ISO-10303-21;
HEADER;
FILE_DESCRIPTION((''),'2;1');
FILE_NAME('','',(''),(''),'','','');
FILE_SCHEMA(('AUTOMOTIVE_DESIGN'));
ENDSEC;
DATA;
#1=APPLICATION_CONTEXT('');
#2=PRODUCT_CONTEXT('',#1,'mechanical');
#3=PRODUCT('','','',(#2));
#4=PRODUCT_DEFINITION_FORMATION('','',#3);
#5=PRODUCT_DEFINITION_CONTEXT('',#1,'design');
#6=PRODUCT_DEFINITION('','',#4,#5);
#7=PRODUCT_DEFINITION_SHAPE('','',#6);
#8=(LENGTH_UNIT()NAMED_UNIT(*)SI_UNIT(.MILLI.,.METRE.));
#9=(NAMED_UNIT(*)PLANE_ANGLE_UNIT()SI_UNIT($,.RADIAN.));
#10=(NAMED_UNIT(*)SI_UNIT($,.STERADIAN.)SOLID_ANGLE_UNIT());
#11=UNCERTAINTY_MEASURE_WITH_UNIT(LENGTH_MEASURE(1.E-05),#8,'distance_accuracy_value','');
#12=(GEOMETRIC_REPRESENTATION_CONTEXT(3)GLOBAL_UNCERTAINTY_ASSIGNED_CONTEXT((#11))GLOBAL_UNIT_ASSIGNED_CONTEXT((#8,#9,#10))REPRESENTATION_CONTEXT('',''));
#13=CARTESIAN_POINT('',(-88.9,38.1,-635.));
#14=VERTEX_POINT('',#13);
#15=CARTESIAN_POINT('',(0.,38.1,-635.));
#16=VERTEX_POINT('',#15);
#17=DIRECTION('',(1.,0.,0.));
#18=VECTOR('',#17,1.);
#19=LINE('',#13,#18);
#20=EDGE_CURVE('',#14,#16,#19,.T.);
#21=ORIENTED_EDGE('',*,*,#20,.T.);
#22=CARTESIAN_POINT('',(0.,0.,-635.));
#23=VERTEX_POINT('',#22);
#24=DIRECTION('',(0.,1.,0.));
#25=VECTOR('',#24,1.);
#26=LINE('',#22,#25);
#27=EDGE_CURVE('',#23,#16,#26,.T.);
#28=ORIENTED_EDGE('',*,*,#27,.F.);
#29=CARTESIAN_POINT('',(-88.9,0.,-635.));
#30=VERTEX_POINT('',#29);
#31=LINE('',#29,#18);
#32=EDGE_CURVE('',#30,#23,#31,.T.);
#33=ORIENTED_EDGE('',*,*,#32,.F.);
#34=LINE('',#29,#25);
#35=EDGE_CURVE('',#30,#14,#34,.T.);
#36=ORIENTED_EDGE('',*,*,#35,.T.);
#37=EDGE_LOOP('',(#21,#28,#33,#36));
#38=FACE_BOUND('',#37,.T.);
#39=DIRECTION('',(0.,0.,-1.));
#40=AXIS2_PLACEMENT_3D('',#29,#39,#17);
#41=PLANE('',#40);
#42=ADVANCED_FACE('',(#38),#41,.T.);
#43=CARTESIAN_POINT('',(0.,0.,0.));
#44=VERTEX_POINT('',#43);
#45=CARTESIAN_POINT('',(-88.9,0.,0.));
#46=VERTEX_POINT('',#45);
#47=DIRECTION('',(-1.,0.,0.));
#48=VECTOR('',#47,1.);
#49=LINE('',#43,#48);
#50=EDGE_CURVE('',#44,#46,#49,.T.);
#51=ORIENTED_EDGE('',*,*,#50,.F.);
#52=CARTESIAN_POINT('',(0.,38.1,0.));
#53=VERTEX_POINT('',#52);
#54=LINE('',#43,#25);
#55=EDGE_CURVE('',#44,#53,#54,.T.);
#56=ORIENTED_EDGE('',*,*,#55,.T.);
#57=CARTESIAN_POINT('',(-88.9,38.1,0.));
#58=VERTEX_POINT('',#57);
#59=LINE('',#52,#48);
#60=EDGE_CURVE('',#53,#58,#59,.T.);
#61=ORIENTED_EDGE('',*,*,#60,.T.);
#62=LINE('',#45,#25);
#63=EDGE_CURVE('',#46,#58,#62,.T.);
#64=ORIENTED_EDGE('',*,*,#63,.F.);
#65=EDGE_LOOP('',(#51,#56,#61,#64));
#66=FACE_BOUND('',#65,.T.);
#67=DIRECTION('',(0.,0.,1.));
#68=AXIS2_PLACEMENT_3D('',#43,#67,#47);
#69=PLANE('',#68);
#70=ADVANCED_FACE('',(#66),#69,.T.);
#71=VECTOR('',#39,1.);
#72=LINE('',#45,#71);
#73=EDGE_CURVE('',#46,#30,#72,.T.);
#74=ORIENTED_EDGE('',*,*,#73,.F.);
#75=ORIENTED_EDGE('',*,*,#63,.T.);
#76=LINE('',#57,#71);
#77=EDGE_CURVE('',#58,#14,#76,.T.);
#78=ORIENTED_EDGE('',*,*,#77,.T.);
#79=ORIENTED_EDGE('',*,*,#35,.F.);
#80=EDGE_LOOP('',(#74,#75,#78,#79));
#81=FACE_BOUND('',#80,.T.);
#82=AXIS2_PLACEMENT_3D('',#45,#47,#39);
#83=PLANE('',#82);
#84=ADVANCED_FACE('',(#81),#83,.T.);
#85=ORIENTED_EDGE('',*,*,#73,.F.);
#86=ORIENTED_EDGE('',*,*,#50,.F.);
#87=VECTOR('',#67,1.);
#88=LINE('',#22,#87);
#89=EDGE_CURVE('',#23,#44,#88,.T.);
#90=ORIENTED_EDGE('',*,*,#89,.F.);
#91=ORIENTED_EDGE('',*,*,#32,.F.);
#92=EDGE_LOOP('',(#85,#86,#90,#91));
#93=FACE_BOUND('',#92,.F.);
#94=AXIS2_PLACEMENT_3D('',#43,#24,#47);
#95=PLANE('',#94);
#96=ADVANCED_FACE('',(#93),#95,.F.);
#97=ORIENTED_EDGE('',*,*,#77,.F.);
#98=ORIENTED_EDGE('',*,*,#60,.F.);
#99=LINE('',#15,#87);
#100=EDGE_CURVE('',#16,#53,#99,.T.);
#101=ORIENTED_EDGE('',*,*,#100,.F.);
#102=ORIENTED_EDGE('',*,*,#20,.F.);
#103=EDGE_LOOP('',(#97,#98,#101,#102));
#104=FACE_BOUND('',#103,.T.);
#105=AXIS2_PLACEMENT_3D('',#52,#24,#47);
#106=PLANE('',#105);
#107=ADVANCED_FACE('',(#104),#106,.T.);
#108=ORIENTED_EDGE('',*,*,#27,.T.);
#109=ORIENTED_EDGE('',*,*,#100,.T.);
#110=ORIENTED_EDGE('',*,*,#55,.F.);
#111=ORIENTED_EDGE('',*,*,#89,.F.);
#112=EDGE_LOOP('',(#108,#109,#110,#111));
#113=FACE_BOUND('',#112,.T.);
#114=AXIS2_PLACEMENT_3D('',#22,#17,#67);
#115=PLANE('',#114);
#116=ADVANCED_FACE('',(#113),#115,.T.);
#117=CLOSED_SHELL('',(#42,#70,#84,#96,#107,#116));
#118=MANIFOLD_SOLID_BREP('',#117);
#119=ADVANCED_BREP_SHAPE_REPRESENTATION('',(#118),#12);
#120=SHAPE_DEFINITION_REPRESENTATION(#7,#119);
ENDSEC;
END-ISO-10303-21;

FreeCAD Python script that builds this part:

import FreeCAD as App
import Part
import Sketcher
from FreeCAD import Vector
Q = App.Units.Quantity

doc = App.newDocument("Part")
body = doc.addObject("PartDesign::Body", "Body")

# Sketch on XZ plane
sketch1 = body.newObject("Sketcher::SketchObject", "Sketch")
sketch1.AttachmentSupport = (doc.getObject("XZ_Plane"), [""])
sketch1.MapMode = "FlatFace"
sketch1.addGeometry(Part.LineSegment(Vector(-89, 0, 0), Vector(0, 0, 0)), False)
sketch1.addGeometry(Part.LineSegment(Vector(0, 0, 0), Vector(0, -635, 0)), False)
sketch1.addGeometry(Part.LineSegment(Vector(0, -635, 0), Vector(-89, -635, 0)), False)
sketch1.addGeometry(Part.LineSegment(Vector(-89, -635, 0), Vector(-89, 0, 0)), False)
sketch1.addConstraint(Sketcher.Constraint("Coincident", 0, 2, 1, 1))
sketch1.addConstraint(Sketcher.Constraint("Coincident", 1, 2, 2, 1))
sketch1.addConstraint(Sketcher.Constraint("Coincident", 2, 2, 3, 1))
sketch1.addConstraint(Sketcher.Constraint("Coincident", 3, 2, 0, 1))
sketch1.addConstraint(Sketcher.Constraint("Horizontal", 0))
sketch1.addConstraint(Sketcher.Constraint("Vertical", 1))
sketch1.addConstraint(Sketcher.Constraint("Horizontal", 2))
sketch1.addConstraint(Sketcher.Constraint("Vertical", 3))
sketch1.addConstraint(Sketcher.Constraint("Coincident", 0, 2, -1, 1))
sketch1.addConstraint(Sketcher.Constraint("DistanceY", 1, 2, 1, 1, Q("25 in")))
sketch1.addConstraint(Sketcher.Constraint("DistanceX", 0, 1, 0, 2, Q("3.5 in")))
pad1 = body.newObject("PartDesign::Pad", "Pad")
pad1.Profile = sketch1
pad1.Length = Q("1.5 in")
pad1.Reversed = True

doc.recompute()
